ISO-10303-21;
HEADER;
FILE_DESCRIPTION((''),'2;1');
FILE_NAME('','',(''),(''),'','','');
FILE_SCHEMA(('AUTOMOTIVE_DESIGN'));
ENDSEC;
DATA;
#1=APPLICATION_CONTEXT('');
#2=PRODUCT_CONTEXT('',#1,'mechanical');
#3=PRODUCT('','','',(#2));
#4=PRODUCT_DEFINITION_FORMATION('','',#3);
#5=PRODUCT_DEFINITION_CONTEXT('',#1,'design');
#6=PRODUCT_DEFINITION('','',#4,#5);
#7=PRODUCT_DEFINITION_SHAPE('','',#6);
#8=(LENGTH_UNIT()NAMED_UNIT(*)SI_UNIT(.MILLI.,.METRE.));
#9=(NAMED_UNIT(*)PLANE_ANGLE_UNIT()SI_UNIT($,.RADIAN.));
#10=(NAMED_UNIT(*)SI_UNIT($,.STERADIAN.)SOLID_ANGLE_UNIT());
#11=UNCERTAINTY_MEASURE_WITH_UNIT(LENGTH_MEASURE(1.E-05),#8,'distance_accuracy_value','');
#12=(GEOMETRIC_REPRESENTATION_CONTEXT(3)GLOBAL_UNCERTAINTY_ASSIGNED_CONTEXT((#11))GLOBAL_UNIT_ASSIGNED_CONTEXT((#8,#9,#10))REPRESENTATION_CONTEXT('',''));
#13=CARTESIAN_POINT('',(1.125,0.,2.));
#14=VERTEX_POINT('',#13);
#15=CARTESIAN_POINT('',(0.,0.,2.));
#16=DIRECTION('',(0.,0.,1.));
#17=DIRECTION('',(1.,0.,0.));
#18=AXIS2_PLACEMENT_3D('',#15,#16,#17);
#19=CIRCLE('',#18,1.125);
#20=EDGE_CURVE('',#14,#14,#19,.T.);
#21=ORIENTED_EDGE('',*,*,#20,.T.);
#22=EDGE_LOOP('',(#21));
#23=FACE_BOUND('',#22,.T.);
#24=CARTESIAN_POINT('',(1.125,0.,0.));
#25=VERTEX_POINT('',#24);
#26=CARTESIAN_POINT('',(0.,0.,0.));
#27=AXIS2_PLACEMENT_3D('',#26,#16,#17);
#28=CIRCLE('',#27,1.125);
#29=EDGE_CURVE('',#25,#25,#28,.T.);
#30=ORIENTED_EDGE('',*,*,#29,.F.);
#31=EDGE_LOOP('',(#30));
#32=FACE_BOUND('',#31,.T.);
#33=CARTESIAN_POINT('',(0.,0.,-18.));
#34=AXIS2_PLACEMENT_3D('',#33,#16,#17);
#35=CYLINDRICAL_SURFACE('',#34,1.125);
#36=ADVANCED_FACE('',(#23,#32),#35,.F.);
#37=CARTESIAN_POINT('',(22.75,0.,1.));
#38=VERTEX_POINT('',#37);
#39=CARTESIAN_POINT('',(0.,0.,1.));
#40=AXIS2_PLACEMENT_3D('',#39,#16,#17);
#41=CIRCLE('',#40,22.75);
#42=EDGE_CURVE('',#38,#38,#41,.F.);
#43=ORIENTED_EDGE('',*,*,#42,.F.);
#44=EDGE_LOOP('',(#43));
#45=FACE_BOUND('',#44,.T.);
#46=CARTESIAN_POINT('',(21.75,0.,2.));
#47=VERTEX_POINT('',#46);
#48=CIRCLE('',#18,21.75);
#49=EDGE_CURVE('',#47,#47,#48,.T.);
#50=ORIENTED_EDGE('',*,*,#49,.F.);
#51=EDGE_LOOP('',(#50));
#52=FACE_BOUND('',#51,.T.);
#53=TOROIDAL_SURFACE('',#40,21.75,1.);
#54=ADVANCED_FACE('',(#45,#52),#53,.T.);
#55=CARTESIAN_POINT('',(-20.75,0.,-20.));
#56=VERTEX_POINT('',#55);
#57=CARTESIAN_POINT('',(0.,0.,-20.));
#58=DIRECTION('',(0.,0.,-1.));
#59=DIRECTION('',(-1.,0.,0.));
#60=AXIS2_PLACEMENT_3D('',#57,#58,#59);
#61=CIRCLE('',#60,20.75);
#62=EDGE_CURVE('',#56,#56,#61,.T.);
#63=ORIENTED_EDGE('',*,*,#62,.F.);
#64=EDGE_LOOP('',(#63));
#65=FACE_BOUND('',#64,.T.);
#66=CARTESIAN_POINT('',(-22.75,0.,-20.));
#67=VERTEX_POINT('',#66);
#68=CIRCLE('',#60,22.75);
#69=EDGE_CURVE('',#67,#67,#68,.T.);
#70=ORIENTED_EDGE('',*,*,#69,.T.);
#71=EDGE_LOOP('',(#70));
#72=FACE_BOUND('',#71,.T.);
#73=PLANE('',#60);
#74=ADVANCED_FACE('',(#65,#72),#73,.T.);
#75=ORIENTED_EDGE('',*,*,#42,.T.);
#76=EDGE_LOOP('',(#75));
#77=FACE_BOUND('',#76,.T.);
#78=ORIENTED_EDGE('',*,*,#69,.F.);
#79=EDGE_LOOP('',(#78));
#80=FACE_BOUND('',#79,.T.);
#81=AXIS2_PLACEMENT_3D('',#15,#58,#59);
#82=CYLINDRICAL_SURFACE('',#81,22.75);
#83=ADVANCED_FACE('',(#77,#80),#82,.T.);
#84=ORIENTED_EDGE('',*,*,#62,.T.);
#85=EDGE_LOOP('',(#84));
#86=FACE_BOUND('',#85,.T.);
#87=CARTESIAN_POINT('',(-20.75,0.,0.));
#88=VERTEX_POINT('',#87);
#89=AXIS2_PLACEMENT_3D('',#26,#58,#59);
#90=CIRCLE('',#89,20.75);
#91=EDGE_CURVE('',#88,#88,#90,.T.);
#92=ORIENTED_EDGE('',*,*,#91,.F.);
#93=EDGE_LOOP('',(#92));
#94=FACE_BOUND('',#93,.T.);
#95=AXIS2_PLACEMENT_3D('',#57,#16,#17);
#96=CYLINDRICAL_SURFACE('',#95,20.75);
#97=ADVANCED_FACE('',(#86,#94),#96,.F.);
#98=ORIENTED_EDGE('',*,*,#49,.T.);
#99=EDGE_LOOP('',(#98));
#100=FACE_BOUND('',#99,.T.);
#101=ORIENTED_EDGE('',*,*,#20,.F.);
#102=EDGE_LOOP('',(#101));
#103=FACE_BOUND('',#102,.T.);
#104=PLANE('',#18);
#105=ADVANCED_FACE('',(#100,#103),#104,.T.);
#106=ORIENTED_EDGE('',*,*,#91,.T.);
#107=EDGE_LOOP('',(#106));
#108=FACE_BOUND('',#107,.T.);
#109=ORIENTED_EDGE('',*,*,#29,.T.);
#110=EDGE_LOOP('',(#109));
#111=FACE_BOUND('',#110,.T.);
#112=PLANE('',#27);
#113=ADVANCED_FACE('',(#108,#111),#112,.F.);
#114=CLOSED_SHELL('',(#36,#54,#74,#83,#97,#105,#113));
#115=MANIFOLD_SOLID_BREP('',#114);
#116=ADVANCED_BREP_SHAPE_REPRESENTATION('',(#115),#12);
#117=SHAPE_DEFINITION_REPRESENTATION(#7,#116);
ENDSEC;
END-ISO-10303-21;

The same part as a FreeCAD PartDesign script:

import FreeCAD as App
import Part
import Sketcher

V = App.Vector
Q = App.Units.Quantity


def edges_at(feature, points):
    """Names of the edges that pass closest to the given points."""
    edges = feature.Shape.Edges
    near = lambda p: min(range(len(edges)), key=lambda i: edges[i].distToShape(Part.Vertex(*p))[0])
    return sorted({f"Edge{near(p) + 1}" for p in points})

doc = App.newDocument("Part")
body = doc.addObject("PartDesign::Body", "Body")

# Sketch on XY plane
sketch1 = body.newObject("Sketcher::SketchObject", "Sketch")
sketch1.AttachmentSupport = (doc.getObject("XY_Plane"), [""])
sketch1.MapMode = "FlatFace"
sketch1.addGeometry(Part.Circle(V(0, 0, 0), V(0, 0, 1), 23), False)
sketch1.addConstraint([
    Sketcher.Constraint("Coincident", 0, 3, -1, 1),
    Sketcher.Constraint("Diameter", 0, Q("45.5 mm")),
])
pad1 = body.newObject("PartDesign::Pad", "Pad")
pad1.Profile = sketch1
pad1.Length = 2

# Sketch on XY plane
sketch2 = body.newObject("Sketcher::SketchObject", "Sketch001")
sketch2.AttachmentSupport = (doc.getObject("XY_Plane"), [""])
sketch2.MapMode = "FlatFace"
sketch2.AttachmentOffset = App.Placement(V(0, 0, -20), App.Rotation())
sketch2.addGeometry([
    Part.Circle(V(0, 0, 0), V(0, 0, 1), 23),
    Part.Circle(V(0, 0, 0), V(0, 0, 1), 21),
], False)
sketch2.addConstraint([
    Sketcher.Constraint("Coincident", 0, 3, -1, 1),
    Sketcher.Constraint("Coincident", 1, 3, -1, 1),
    Sketcher.Constraint("Diameter", 0, Q("45.5 mm")),
    Sketcher.Constraint("Diameter", 1, Q("41.5 mm")),
])
pad2 = body.newObject("PartDesign::Pad", "Pad001")
pad2.Profile = sketch2
pad2.Length = 20
doc.recompute()

fillet = body.newObject("PartDesign::Fillet", "Fillet")
fillet.Base = (pad2, edges_at(pad2, [(-22.75, 0, 2)]))
fillet.Radius = 1

# Sketch on XY plane
sketch3 = body.newObject("Sketcher::SketchObject", "Sketch002")
sketch3.AttachmentSupport = (doc.getObject("XY_Plane"), [""])
sketch3.MapMode = "FlatFace"
sketch3.AttachmentOffset = App.Placement(V(0, 0, 2), App.Rotation())
sketch3.addGeometry(Part.Circle(V(0, 0, 0), V(0, 0, 1), 1.1), False)
sketch3.addConstraint([
    Sketcher.Constraint("Coincident", 0, 3, -1, 1),
    Sketcher.Constraint("Diameter", 0, Q("2.25 mm")),
])
pocket1 = body.newObject("PartDesign::Pocket", "Pocket")
pocket1.Profile = sketch3
pocket1.Length = 20

doc.recompute()
